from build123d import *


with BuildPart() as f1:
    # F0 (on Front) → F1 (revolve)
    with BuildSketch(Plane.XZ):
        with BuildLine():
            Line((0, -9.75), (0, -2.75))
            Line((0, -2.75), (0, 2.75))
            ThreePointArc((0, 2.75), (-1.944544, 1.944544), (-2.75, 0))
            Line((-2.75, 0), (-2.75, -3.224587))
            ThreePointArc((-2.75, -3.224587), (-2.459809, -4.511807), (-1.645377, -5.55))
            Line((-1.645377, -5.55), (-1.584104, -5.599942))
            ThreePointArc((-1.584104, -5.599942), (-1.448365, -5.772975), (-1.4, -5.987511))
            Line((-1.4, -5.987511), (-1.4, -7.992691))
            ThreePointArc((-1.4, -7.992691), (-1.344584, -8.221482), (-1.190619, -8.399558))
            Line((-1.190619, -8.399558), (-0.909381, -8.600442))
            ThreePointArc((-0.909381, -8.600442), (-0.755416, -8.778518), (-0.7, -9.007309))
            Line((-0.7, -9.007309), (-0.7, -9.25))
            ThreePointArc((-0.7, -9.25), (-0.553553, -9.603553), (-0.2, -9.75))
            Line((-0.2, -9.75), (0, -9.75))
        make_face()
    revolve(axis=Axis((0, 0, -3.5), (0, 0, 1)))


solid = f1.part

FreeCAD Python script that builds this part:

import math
import FreeCAD as App
import Part
import Sketcher

V = App.Vector
Q = App.Units.Quantity

doc = App.newDocument("Part")
body = doc.addObject("PartDesign::Body", "Body")

# Sketch on XZ plane
sketch1 = doc.addObject("Sketcher::SketchObject", "Sketch")
body.addObject(sketch1)
sketch1.AttachmentSupport = (doc.XZ_Plane, [""])
sketch1.MapMode = "FlatFace"
sketch1.addGeometry(Part.LineSegment(V(0, -9.75, 0), V(0, 2.75, 0)), False)
sketch1.addGeometry(Part.ArcOfCircle(Part.Circle(V(0, 0, 0), V(0, 0, 1), 2.75), math.radians(90), math.radians(180)), False)
sketch1.addGeometry(Part.LineSegment(V(-2.75, 0, 0), V(-2.75, -3.22, 0)), False)
sketch1.addGeometry(Part.ArcOfCircle(Part.Circle(V(0.25, -3.22, 0), V(0, 0, 1), 3), math.radians(180), math.radians(231)), False)
sketch1.addGeometry(Part.LineSegment(V(-1.65, -5.55, 0), V(-1.58, -5.6, 0)), False)
sketch1.addGeometry(Part.ArcOfCircle(Part.Circle(V(-1.9, -5.99, 0), V(0, 0, 1), 0.5), math.radians(0), math.radians(51)), False)
sketch1.addGeometry(Part.LineSegment(V(-1.4, -5.99, 0), V(-1.4, -7.99, 0)), False)
sketch1.addGeometry(Part.ArcOfCircle(Part.Circle(V(-0.9, -7.99, 0), V(0, 0, 1), 0.5), math.radians(180), math.radians(234)), False)
sketch1.addGeometry(Part.LineSegment(V(-1.19, -8.4, 0), V(-0.91, -8.6, 0)), False)
sketch1.addGeometry(Part.ArcOfCircle(Part.Circle(V(-1.2, -9.01, 0), V(0, 0, 1), 0.5), math.radians(0), math.radians(54)), False)
sketch1.addGeometry(Part.LineSegment(V(-0.7, -9.01, 0), V(-0.7, -9.25, 0)), False)
sketch1.addGeometry(Part.ArcOfCircle(Part.Circle(V(-0.2, -9.25, 0), V(0, 0, 1), 0.5), math.radians(-180), math.radians(-90)), False)
sketch1.addGeometry(Part.LineSegment(V(-0.2, -9.75, 0), V(0, -9.75, 0)), False)
sketch1.addConstraint(Sketcher.Constraint("Coincident", 0, 2, 1, 1))
sketch1.addConstraint(Sketcher.Constraint("Tangent", 1, 2, 2, 1))
sketch1.addConstraint(Sketcher.Constraint("Tangent", 2, 2, 3, 1))
sketch1.addConstraint(Sketcher.Constraint("Tangent", 3, 2, 4, 1))
sketch1.addConstraint(Sketcher.Constraint("Tangent", 4, 2, 5, 2))
sketch1.addConstraint(Sketcher.Constraint("Tangent", 5, 1, 6, 1))
sketch1.addConstraint(Sketcher.Constraint("Tangent", 6, 2, 7, 1))
sketch1.addConstraint(Sketcher.Constraint("Tangent", 7, 2, 8, 1))
sketch1.addConstraint(Sketcher.Constraint("Tangent", 8, 2, 9, 2))
sketch1.addConstraint(Sketcher.Constraint("Tangent", 9, 1, 10, 1))
sketch1.addConstraint(Sketcher.Constraint("Coincident", 10, 2, 11, 1))
sketch1.addConstraint(Sketcher.Constraint("Coincident", 11, 2, 12, 1))
sketch1.addConstraint(Sketcher.Constraint("Coincident", 12, 2, 0, 1))
sketch1.addConstraint(Sketcher.Constraint("Vertical", 0))
sketch1.addConstraint(Sketcher.Constraint("Vertical", 2))
sketch1.addConstraint(Sketcher.Constraint("Vertical", 6))
sketch1.addConstraint(Sketcher.Constraint("Vertical", 10))
sketch1.addConstraint(Sketcher.Constraint("Horizontal", 12))
sketch1.addConstraint(Sketcher.Constraint("Coincident", 1, 3, -1, 1))
sketch1.addConstraint(Sketcher.Constraint("Equal", 7, 9))
sketch1.addConstraint(Sketcher.Constraint("Equal", 5, 11))
sketch1.addConstraint(Sketcher.Constraint("PointOnObject", 0, 2, -2))
sketch1.addConstraint(Sketcher.Constraint("Horizontal", 11, 3, 10, 2))
sketch1.addConstraint(Sketcher.Constraint("Radius", 3, Q("2.999999 mm")))
sketch1.addConstraint(Sketcher.Constraint("Radius", 5, Q("0.500001 mm")))
sketch1.addConstraint(Sketcher.Constraint("Radius", 7, Q("0.499999 mm")))
sketch1.addConstraint(Sketcher.Constraint("Radius", 1, Q("2.749999 mm")))
sketch1.addConstraint(Sketcher.Constraint("DistanceX", 12, 1, 12, 2, Q("0.2 mm")))
sketch1.addConstraint(Sketcher.Constraint("DistanceY", 0, 1, 0, 2, Q("12.5 mm")))
sketch1.addConstraint(Sketcher.Constraint("DistanceX", 9, 3, 11, 2, Q("0.999999 mm")))
sketch1.addConstraint(Sketcher.Constraint("DistanceX", 5, 3, -1, 1, Q("1.900001 mm")))
sketch1.addConstraint(Sketcher.Constraint("DistanceY", 3, 2, -1, 1, Q("5.55 mm")))
sketch1.addConstraint(Sketcher.Constraint("DistanceY", 6, 2, 6, 1, Q("2.00518 mm")))
sketch1.addConstraint(Sketcher.Constraint("DistanceY", 10, 2, 10, 1, Q("0.242691 mm")))
sketch1.addConstraint(Sketcher.Constraint("DistanceY", 2, 2, 2, 1, Q("3.224587 mm")))
revolution = doc.addObject("PartDesign::Revolution", "Revolution")
body.addObject(revolution)
revolution.Profile = sketch1
revolution.ReferenceAxis = (sketch1, ["V_Axis"])
revolution.Angle = 360

doc.recompute()
